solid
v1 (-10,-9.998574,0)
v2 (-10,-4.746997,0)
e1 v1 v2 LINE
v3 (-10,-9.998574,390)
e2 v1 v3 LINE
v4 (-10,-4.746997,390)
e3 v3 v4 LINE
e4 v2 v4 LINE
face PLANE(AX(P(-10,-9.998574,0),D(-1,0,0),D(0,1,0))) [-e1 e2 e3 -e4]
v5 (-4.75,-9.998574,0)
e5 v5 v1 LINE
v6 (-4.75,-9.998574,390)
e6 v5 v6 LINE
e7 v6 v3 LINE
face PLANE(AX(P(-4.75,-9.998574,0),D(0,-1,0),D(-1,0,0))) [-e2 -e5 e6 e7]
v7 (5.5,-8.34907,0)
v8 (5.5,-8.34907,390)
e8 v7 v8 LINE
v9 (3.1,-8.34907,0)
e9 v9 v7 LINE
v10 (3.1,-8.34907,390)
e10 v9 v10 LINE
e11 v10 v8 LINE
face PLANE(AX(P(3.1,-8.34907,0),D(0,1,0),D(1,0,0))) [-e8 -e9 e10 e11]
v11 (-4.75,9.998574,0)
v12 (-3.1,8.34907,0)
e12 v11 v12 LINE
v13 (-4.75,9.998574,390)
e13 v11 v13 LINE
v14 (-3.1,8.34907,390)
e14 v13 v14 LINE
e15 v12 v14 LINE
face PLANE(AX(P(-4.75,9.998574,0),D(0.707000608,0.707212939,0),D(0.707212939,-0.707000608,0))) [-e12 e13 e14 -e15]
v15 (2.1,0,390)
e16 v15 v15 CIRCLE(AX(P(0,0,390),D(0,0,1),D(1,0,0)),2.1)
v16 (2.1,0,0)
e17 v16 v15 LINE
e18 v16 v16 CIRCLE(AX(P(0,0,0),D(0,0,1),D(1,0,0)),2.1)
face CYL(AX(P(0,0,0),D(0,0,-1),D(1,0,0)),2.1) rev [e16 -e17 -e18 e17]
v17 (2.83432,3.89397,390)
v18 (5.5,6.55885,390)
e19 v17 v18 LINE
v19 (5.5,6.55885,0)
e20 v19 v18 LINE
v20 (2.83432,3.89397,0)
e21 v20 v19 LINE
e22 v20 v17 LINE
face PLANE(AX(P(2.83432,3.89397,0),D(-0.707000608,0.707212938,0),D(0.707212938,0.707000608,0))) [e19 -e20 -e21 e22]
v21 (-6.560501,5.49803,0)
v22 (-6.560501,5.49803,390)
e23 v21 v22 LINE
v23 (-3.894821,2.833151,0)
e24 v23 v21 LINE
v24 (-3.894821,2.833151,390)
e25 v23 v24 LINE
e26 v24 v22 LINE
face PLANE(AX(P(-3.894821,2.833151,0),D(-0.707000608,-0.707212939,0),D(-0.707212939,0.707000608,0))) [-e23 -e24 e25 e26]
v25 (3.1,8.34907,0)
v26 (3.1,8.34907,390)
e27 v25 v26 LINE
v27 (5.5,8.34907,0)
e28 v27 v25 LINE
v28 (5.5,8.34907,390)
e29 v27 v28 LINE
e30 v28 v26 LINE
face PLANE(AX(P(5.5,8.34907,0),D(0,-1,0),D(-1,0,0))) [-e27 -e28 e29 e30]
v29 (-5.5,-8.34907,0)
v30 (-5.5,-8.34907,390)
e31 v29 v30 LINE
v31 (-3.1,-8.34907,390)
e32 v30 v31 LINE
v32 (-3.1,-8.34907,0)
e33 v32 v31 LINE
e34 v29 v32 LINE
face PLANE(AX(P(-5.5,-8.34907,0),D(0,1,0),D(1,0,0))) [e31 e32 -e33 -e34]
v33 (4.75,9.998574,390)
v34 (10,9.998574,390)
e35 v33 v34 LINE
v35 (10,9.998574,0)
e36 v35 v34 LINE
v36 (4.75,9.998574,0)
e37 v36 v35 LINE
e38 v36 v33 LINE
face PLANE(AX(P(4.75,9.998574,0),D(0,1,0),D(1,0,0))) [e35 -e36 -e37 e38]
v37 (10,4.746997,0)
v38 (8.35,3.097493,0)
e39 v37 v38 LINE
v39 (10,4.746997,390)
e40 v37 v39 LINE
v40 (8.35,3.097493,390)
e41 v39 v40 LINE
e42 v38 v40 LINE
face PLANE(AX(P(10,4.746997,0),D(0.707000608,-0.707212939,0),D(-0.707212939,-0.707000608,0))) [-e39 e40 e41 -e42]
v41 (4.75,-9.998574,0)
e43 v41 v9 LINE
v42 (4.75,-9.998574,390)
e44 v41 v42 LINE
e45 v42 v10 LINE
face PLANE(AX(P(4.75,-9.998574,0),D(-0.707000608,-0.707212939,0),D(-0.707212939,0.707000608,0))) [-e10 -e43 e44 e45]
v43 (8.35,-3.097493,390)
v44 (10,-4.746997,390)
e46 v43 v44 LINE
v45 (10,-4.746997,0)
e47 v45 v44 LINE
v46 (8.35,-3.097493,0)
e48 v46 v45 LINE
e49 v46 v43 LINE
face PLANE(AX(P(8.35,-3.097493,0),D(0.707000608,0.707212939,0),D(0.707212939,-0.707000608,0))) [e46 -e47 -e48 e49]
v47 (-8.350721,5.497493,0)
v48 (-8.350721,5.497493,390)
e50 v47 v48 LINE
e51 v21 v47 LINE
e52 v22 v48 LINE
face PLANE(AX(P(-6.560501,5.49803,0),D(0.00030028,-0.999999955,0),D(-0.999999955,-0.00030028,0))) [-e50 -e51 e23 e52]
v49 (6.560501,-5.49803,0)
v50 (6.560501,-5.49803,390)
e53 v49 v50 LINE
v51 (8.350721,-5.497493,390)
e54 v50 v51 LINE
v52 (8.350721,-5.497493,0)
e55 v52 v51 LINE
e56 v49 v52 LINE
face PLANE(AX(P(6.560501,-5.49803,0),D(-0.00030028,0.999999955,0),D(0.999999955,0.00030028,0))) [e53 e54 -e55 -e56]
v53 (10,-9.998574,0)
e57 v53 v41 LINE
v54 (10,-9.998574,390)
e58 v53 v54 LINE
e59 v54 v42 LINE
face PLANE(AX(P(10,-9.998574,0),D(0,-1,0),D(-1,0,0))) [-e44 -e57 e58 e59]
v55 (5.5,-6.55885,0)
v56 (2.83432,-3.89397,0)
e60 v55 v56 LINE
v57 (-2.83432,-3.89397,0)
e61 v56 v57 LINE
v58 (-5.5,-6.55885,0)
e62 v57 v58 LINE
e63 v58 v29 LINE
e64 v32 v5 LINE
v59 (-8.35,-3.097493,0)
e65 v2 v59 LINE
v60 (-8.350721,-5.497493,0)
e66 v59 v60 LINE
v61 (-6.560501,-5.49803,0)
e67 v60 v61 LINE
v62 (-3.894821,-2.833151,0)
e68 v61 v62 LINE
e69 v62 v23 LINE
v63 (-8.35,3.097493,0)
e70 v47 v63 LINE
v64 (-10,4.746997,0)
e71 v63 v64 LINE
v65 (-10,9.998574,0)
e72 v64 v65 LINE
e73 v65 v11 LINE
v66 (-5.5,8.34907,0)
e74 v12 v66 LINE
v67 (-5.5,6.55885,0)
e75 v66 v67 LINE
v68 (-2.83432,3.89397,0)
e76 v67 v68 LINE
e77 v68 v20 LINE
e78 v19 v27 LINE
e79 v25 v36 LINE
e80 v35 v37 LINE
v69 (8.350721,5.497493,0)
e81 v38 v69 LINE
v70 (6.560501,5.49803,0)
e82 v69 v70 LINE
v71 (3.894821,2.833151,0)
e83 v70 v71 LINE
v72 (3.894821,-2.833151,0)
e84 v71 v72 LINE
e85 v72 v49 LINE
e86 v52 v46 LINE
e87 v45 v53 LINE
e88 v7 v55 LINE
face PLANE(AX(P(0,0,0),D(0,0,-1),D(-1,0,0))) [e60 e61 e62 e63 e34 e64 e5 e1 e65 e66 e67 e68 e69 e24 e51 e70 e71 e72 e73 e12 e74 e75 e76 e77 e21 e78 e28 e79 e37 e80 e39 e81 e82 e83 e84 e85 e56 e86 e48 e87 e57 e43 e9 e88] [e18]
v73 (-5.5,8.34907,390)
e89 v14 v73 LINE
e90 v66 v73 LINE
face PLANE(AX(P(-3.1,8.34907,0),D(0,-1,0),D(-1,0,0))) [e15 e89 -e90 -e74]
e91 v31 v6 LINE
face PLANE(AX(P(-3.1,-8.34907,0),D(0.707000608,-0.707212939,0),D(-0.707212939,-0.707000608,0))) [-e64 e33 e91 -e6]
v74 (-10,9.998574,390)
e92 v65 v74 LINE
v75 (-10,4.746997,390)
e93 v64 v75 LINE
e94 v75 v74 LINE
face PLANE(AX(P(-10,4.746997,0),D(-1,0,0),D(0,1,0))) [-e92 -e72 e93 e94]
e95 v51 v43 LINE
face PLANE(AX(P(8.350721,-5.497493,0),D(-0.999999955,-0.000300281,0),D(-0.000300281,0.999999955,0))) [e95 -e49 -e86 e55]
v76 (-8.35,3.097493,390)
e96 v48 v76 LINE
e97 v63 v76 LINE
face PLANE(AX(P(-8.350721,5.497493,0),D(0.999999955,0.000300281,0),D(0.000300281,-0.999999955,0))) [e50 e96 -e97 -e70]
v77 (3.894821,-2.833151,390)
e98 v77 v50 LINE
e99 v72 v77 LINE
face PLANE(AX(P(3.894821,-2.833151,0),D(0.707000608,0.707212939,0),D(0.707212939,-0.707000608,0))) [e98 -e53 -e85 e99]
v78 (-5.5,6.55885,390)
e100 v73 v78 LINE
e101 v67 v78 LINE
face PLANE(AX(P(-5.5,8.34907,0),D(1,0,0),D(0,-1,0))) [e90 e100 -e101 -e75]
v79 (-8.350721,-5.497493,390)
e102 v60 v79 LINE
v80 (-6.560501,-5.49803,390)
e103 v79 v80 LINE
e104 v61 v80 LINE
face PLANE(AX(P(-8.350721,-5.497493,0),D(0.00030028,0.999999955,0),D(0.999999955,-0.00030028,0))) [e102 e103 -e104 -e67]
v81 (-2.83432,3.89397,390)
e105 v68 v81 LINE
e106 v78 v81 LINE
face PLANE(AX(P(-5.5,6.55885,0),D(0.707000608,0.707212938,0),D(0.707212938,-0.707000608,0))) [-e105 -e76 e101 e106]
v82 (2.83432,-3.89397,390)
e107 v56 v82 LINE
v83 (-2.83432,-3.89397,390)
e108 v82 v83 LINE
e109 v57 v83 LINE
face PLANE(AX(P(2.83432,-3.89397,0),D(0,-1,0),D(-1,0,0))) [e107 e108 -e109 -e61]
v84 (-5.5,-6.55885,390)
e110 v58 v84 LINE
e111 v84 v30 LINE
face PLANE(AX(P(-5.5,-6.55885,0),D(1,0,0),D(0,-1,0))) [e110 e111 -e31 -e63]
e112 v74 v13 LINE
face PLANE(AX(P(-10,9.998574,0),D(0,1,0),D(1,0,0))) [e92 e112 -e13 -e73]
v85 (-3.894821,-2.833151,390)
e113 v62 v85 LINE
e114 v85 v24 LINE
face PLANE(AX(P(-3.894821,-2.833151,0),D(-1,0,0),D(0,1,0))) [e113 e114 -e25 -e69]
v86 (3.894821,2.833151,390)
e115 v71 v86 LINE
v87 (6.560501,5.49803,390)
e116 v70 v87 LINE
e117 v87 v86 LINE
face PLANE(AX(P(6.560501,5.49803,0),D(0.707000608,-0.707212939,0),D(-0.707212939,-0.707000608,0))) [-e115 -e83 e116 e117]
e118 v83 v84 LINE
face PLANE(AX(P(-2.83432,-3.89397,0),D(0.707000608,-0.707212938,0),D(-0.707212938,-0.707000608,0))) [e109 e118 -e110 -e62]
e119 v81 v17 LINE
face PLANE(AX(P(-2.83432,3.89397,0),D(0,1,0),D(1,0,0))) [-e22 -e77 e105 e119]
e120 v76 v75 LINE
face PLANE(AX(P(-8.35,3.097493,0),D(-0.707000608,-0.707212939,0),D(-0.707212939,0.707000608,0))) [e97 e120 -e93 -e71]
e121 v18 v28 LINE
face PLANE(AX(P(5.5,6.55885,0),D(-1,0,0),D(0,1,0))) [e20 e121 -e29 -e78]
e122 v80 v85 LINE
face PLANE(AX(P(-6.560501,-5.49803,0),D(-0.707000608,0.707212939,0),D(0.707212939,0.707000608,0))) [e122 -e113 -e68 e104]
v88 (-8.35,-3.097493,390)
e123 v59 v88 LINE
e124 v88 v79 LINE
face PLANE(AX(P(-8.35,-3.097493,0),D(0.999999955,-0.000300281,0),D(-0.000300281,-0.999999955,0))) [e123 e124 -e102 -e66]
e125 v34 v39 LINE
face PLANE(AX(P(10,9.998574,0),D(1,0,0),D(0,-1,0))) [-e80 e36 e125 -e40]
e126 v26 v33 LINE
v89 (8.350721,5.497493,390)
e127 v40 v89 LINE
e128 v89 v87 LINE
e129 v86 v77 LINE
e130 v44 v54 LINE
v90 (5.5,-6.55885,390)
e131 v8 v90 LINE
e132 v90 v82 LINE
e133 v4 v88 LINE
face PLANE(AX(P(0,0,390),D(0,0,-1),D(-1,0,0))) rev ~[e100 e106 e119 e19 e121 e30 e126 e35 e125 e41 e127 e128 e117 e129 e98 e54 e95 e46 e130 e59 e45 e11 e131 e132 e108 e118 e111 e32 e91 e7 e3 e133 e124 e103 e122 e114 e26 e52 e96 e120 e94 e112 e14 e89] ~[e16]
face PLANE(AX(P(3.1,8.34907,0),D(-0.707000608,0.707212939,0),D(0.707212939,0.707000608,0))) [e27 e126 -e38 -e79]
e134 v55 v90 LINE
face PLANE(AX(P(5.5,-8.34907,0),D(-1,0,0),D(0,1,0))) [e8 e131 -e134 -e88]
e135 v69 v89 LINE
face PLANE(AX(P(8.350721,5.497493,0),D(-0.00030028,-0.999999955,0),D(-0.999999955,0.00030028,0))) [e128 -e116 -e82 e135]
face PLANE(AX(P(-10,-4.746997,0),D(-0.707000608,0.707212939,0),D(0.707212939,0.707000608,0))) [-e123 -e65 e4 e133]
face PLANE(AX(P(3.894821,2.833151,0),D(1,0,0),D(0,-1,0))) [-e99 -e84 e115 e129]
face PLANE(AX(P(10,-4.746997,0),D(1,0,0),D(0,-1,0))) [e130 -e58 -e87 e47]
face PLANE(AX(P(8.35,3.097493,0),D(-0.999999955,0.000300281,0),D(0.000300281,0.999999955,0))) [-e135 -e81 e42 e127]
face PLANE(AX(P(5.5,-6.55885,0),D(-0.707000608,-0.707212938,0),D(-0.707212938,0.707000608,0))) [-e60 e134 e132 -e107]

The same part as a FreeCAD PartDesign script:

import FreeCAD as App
import Part
import Sketcher

V = App.Vector


def add_polygon(sketch, points):
    """Adds a closed chain of lines whose ends are joined by coincident constraints."""
    first, n = sketch.GeometryCount, len(points)
    for a, b in zip(points, points[1:] + points[:1]):
        sketch.addGeometry(Part.LineSegment(App.Vector(*a, 0), App.Vector(*b, 0)), False)
    for i in range(n):
        sketch.addConstraint(Sketcher.Constraint("Coincident", first + i, 2, first + (i + 1) % n, 1))

doc = App.newDocument("Part")
body = doc.addObject("PartDesign::Body", "Body")

sketch1 = body.newObject("Sketcher::SketchObject", "Sketch")
sketch1.AttachmentSupport = (doc.getObject("XY_Plane"), [""])
sketch1.MapMode = "FlatFace"
add_polygon(sketch1, [(5.5, 6.6), (2.8, 3.9), (-2.8, 3.9), (-5.5, 6.6), (-5.5, 8.3), (-3.1, 8.3), (-4.8, 10), (-10, 10), (-10, 4.7), (-8.3, 3.1), (-8.4, 5.5), (-6.6, 5.5), (-3.9, 2.8), (-3.9, -2.8), (-6.6, -5.5), (-8.4, -5.5), (-8.3, -3.1), (-10, -4.7), (-10, -10), (-4.8, -10), (-3.1, -8.3), (-5.5, -8.3), (-5.5, -6.6), (-2.8, -3.9), (2.8, -3.9), (5.5, -6.6), (5.5, -8.3), (3.1, -8.3), (4.8, -10), (10, -10), (10, -4.7), (8.3, -3.1), (8.4, -5.5), (6.6, -5.5), (3.9, -2.8), (3.9, 2.8), (6.6, 5.5), (8.4, 5.5), (8.3, 3.1), (10, 4.7), (10, 10), (4.8, 10), (3.1, 8.3), (5.5, 8.3)])
sketch1.addGeometry(Part.Circle(V(0, 0, 0), V(0, 0, 1), 2.1), False)
sketch1.addConstraint(Sketcher.Constraint("Horizontal", 1))
sketch1.addConstraint(Sketcher.Constraint("Vertical", 3))
sketch1.addConstraint(Sketcher.Constraint("Horizontal", 4))
sketch1.addConstraint(Sketcher.Constraint("Horizontal", 6))
sketch1.addConstraint(Sketcher.Constraint("Vertical", 7))
sketch1.addConstraint(Sketcher.Constraint("Vertical", 12))
sketch1.addConstraint(Sketcher.Constraint("Vertical", 17))
sketch1.addConstraint(Sketcher.Constraint("Horizontal", 18))
sketch1.addConstraint(Sketcher.Constraint("Horizontal", 20))
sketch1.addConstraint(Sketcher.Constraint("Vertical", 21))
sketch1.addConstraint(Sketcher.Constraint("Horizontal", 23))
sketch1.addConstraint(Sketcher.Constraint("Vertical", 25))
sketch1.addConstraint(Sketcher.Constraint("Horizontal", 26))
sketch1.addConstraint(Sketcher.Constraint("Horizontal", 28))
sketch1.addConstraint(Sketcher.Constraint("Vertical", 29))
sketch1.addConstraint(Sketcher.Constraint("Vertical", 34))
sketch1.addConstraint(Sketcher.Constraint("Vertical", 39))
sketch1.addConstraint(Sketcher.Constraint("Horizontal", 40))
sketch1.addConstraint(Sketcher.Constraint("Horizontal", 42))
sketch1.addConstraint(Sketcher.Constraint("Vertical", 43))
sketch1.addConstraint(Sketcher.Constraint("Coincident", 44, 3, -1, 1))
sketch1.addConstraint(Sketcher.Constraint("Symmetric", 0, 2, 22, 2, -1, 1))
sketch1.addConstraint(Sketcher.Constraint("Symmetric", 2, 2, 24, 2, -1, 1))
sketch1.addConstraint(Sketcher.Constraint("Symmetric", 4, 2, 26, 2, -1, 1))
sketch1.addConstraint(Sketcher.Constraint("Symmetric", 5, 2, 27, 2, -1, 1))
sketch1.addConstraint(Sketcher.Constraint("Symmetric", 7, 2, 29, 2, -1, 1))
sketch1.addConstraint(Sketcher.Constraint("Symmetric", 8, 2, 30, 2, -1, 1))
sketch1.addConstraint(Sketcher.Constraint("Symmetric", 9, 2, 31, 2, -1, 1))
sketch1.addConstraint(Sketcher.Constraint("Symmetric", 10, 2, 32, 2, -1, 1))
sketch1.addConstraint(Sketcher.Constraint("Symmetric", 11, 2, 33, 2, -1, 1))
sketch1.addConstraint(Sketcher.Constraint("Symmetric", 13, 2, 35, 2, -1, 1))
sketch1.addConstraint(Sketcher.Constraint("Symmetric", 14, 2, 36, 2, -1, 1))
sketch1.addConstraint(Sketcher.Constraint("Symmetric", 15, 2, 37, 2, -1, 1))
sketch1.addConstraint(Sketcher.Constraint("Symmetric", 16, 2, 38, 2, -1, 1))
sketch1.addConstraint(Sketcher.Constraint("Symmetric", 18, 2, 40, 2, -1, 1))
sketch1.addConstraint(Sketcher.Constraint("Symmetric", 19, 2, 41, 2, -1, 1))
sketch1.addConstraint(Sketcher.Constraint("Symmetric", 21, 2, 43, 2, -1, 1))
sketch1.addConstraint(Sketcher.Constraint("Symmetric", 21, 2, 24, 2, -2))
sketch1.addConstraint(Sketcher.Constraint("Symmetric", 19, 2, 26, 2, -2))
sketch1.addConstraint(Sketcher.Constraint("Symmetric", 18, 2, 27, 2, -2))
sketch1.addConstraint(Sketcher.Constraint("Symmetric", 16, 2, 29, 2, -2))
sketch1.addConstraint(Sketcher.Constraint("Symmetric", 15, 2, 30, 2, -2))
sketch1.addConstraint(Sketcher.Constraint("Symmetric", 14, 2, 31, 2, -2))
sketch1.addConstraint(Sketcher.Constraint("Symmetric", 13, 2, 32, 2, -2))
sketch1.addConstraint(Sketcher.Constraint("Parallel", 2, 5))
sketch1.addConstraint(Sketcher.Constraint("Parallel", 5, 8))
sketch1.addConstraint(Sketcher.Constraint("Perpendicular", 9, 10))
sketch1.addConstraint(Sketcher.Constraint("Parallel", 8, 11))
sketch1.addConstraint(Sketcher.Constraint("Parallel", 0, 13))
sketch1.addConstraint(Sketcher.Constraint("Parallel", 13, 16))
sketch1.addConstraint(Sketcher.Constraint("Parallel", 11, 24))
sketch1.addConstraint(Sketcher.Constraint("Parallel", 22, 35))
sketch1.addConstraint(Sketcher.Constraint("Equal", 5, 8))
sketch1.addConstraint(Sketcher.Constraint("Equal", 2, 11))
sketch1.addConstraint(Sketcher.Constraint("Diameter", 44, 4.2))
sketch1.addConstraint(Sketcher.Constraint("DistanceX", 4, 1, 4, 2, 2.4))
sketch1.addConstraint(Sketcher.Constraint("DistanceX", 6, 2, -1, 1, 10.0))
sketch1.addConstraint(Sketcher.Constraint("Distance", 9, 2.4))
sketch1.addConstraint(Sketcher.Constraint("DistanceX", 6, 2, 6, 1, 5.25))
sketch1.addConstraint(Sketcher.Constraint("DistanceX", 2, 2, -1, 1, 5.5))
sketch1.addConstraint(Sketcher.Constraint("DistanceY", 12, 2, 12, 1, 5.666302))
sketch1.addConstraint(Sketcher.Constraint("DistanceY", 13, 2, 1, 2, 9.392001))
sketch1.addConstraint(Sketcher.Constraint("DistanceX", 1, 2, 1, 1, 5.668641))
sketch1.addConstraint(Sketcher.Constraint("DistanceY", 3, 1, 3, 2, 1.79022))
sketch1.addConstraint(Sketcher.Constraint("DistanceX", 10, 2, -1, 1, 6.560501))
sketch1.addConstraint(Sketcher.Constraint("DistanceY", 1, 2, 3, 2, 4.455099))
sketch1.addConstraint(Sketcher.Constraint("DistanceX", 14, 2, 12, 2, 4.455899))
pad1 = body.newObject("PartDesign::Pad", "Pad")
pad1.Profile = sketch1
pad1.Length = 390

doc.recompute()
